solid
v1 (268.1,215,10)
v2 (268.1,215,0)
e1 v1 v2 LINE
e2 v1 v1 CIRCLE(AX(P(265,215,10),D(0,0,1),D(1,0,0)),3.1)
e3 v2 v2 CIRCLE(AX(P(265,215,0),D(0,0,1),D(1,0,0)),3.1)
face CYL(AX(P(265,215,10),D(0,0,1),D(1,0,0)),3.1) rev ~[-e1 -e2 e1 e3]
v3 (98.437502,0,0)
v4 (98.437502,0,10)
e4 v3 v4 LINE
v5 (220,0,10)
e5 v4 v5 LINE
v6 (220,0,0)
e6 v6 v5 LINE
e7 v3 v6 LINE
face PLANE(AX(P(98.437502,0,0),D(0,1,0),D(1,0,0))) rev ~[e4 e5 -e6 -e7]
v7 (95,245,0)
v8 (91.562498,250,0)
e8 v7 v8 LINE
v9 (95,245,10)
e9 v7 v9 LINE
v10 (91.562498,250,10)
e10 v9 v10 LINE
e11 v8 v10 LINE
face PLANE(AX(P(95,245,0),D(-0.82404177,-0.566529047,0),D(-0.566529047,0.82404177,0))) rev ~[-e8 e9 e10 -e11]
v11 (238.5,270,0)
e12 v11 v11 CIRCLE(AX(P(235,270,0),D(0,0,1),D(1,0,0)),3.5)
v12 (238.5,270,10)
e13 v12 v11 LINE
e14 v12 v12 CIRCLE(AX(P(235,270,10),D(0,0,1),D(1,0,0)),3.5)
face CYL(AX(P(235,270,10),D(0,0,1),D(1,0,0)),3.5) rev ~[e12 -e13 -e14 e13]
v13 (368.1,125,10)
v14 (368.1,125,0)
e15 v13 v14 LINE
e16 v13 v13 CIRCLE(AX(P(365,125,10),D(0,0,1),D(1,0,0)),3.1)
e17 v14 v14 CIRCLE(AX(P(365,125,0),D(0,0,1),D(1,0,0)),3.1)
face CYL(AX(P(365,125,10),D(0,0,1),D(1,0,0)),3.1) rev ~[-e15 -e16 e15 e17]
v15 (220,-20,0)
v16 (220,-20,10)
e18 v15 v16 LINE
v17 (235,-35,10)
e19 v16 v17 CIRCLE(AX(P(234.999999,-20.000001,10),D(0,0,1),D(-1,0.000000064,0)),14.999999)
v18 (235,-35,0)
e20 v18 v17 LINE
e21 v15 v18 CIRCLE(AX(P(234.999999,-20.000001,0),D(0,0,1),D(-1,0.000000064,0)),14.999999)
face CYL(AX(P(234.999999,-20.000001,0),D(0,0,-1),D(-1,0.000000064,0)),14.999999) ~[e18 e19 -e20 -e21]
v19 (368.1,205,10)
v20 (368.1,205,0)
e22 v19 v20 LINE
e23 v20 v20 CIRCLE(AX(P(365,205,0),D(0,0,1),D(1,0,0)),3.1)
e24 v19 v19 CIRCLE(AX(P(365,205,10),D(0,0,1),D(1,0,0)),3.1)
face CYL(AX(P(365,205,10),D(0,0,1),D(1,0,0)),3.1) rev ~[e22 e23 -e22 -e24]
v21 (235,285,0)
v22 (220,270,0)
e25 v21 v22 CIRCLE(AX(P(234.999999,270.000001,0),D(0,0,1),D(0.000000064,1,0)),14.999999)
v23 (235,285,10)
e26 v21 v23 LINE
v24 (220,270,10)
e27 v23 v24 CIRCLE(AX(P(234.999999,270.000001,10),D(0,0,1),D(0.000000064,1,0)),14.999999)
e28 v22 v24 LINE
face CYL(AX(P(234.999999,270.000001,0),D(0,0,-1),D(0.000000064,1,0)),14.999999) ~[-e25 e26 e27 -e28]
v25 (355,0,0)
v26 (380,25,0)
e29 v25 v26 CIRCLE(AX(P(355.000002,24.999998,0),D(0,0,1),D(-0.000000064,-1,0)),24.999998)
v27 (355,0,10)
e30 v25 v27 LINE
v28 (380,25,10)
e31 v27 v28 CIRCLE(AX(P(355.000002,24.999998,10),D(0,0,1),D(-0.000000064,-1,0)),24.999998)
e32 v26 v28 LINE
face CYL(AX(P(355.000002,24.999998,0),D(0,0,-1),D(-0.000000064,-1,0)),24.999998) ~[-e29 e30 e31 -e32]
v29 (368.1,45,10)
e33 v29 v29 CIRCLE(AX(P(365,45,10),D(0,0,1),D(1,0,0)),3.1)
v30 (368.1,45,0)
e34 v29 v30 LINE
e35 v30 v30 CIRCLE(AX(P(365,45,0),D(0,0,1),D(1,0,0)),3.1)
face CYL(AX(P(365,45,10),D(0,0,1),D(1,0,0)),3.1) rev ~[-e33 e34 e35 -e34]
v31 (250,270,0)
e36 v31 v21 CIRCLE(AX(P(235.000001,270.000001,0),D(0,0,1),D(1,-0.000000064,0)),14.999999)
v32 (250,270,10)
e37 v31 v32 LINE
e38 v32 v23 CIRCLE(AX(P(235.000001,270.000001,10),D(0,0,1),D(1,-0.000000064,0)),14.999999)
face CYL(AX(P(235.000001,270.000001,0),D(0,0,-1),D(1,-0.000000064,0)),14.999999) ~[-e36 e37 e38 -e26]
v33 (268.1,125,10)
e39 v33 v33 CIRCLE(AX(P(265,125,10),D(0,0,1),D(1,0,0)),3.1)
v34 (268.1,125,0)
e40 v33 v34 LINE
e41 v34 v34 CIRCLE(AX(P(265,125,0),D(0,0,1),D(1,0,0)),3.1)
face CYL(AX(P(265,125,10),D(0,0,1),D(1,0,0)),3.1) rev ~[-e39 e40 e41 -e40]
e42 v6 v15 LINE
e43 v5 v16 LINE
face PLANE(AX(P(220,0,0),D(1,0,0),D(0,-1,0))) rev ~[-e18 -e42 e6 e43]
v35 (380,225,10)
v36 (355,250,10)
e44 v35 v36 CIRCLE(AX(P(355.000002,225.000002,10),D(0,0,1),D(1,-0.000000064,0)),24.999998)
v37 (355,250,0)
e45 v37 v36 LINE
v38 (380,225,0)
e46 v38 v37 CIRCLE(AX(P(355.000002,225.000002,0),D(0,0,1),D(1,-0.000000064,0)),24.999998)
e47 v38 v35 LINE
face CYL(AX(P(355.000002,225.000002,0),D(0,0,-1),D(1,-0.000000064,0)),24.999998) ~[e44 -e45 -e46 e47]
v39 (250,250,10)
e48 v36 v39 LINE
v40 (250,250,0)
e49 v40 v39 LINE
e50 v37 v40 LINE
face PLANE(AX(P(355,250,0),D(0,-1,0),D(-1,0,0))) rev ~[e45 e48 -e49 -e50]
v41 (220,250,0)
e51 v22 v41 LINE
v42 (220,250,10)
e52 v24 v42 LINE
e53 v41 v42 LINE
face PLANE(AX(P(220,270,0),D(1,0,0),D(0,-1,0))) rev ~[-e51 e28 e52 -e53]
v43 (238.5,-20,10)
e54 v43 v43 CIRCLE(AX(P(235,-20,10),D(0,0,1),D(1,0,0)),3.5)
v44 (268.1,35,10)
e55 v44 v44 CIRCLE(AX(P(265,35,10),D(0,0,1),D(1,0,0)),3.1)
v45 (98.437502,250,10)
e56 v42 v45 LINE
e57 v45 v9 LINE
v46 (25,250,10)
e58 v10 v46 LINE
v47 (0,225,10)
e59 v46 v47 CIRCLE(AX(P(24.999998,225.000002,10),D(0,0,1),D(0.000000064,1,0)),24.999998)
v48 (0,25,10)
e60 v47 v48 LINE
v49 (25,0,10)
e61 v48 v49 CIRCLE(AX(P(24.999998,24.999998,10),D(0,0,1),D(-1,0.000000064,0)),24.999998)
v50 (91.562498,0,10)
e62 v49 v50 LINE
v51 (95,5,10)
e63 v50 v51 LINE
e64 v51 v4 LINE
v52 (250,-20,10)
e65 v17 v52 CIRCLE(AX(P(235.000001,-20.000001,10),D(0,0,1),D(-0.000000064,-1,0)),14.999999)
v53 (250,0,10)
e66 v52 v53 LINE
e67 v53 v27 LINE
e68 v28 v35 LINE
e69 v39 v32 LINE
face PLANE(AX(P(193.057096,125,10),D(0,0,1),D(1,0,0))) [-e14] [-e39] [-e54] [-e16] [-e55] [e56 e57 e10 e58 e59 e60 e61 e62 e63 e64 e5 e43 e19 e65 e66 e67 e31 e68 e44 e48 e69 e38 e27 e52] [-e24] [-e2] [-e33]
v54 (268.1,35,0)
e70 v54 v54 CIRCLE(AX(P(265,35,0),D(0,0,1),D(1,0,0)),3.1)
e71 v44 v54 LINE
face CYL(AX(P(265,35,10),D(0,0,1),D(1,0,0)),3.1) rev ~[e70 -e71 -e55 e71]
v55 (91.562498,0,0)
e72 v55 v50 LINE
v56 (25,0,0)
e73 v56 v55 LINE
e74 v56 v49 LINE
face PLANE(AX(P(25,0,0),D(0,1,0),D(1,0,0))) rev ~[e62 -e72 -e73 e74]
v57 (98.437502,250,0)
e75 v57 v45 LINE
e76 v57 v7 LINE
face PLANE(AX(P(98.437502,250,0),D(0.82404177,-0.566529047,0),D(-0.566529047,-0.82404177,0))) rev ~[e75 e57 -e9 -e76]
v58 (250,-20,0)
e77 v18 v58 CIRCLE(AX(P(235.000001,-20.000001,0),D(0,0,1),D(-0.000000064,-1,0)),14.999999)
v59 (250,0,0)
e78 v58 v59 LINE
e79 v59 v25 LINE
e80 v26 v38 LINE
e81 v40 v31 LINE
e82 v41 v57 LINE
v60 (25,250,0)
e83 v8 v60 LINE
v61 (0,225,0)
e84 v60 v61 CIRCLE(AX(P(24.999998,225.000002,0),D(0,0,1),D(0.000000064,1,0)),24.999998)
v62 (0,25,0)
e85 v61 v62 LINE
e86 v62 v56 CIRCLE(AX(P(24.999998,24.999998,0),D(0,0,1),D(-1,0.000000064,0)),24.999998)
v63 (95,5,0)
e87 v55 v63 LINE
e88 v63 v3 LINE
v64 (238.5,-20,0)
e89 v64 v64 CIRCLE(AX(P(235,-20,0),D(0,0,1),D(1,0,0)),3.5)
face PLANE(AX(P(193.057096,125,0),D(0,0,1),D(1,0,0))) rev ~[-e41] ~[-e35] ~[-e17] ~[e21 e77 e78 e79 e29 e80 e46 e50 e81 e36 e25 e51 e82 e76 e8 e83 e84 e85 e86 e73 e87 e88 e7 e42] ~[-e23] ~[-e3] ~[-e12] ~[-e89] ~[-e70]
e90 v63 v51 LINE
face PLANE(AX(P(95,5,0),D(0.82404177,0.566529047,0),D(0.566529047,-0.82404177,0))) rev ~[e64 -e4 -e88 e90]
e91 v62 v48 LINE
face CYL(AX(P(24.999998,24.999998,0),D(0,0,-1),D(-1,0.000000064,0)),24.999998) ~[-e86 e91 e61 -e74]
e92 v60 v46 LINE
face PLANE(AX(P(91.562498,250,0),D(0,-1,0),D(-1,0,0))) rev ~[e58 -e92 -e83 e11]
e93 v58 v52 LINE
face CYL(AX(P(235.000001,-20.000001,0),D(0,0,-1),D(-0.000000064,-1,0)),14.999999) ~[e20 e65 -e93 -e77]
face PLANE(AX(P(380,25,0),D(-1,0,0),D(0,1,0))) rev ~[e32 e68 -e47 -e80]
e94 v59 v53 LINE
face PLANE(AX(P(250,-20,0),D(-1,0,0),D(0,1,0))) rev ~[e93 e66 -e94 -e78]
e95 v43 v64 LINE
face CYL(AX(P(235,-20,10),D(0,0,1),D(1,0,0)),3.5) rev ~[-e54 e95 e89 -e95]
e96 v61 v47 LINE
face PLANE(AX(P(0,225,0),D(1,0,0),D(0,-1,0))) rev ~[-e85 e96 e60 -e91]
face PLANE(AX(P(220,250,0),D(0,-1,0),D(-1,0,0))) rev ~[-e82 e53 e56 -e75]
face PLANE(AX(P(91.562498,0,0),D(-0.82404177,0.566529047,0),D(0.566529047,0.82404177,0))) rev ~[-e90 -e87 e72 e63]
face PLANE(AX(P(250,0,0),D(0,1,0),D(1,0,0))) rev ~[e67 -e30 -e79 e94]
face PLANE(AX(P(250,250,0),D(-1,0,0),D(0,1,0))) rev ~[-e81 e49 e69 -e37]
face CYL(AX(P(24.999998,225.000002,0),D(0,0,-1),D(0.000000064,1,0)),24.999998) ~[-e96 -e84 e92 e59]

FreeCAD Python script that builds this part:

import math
import FreeCAD as App
import Part
import Sketcher
from FreeCAD import Vector

doc = App.newDocument("Part")
body = doc.addObject("PartDesign::Body", "Body")

sketch1 = body.newObject("Sketcher::SketchObject", "Sketch")
sketch1.AttachmentSupport = (doc.getObject("XY_Plane"), [""])
sketch1.MapMode = "FlatFace"
sketch1.addGeometry(Part.ArcOfCircle(Part.Circle(Vector(25, 25, 0), Vector(0, 0, 1), 25), math.radians(180), math.radians(270)), False)
sketch1.addGeometry(Part.LineSegment(Vector(25, 0, 0), Vector(92, 0, 0)), False)
sketch1.addGeometry(Part.LineSegment(Vector(92, 0, 0), Vector(95, 5, 0)), False)
sketch1.addGeometry(Part.LineSegment(Vector(95, 5, 0), Vector(98, 0, 0)), False)
sketch1.addGeometry(Part.LineSegment(Vector(98, 0, 0), Vector(220, 0, 0)), False)
sketch1.addGeometry(Part.LineSegment(Vector(220, 0, 0), Vector(220, -20, 0)), False)
sketch1.addGeometry(Part.ArcOfCircle(Part.Circle(Vector(235, -20, 0), Vector(0, 0, 1), 15), math.radians(180), math.radians(270)), False)
sketch1.addGeometry(Part.ArcOfCircle(Part.Circle(Vector(235, -20, 0), Vector(0, 0, 1), 15), math.radians(-90), math.radians(0)), False)
sketch1.addGeometry(Part.LineSegment(Vector(250, -20, 0), Vector(250, 0, 0)), False)
sketch1.addGeometry(Part.LineSegment(Vector(250, 0, 0), Vector(355, 0, 0)), False)
sketch1.addGeometry(Part.ArcOfCircle(Part.Circle(Vector(355, 25, 0), Vector(0, 0, 1), 25), math.radians(-90), math.radians(0)), False)
sketch1.addGeometry(Part.LineSegment(Vector(380, 25, 0), Vector(380, 225, 0)), False)
sketch1.addGeometry(Part.ArcOfCircle(Part.Circle(Vector(355, 225, 0), Vector(0, 0, 1), 25), math.radians(0), math.radians(90)), False)
sketch1.addGeometry(Part.LineSegment(Vector(355, 250, 0), Vector(250, 250, 0)), False)
sketch1.addGeometry(Part.LineSegment(Vector(250, 250, 0), Vector(250, 270, 0)), False)
sketch1.addGeometry(Part.ArcOfCircle(Part.Circle(Vector(235, 270, 0), Vector(0, 0, 1), 15), math.radians(0), math.radians(90)), False)
sketch1.addGeometry(Part.ArcOfCircle(Part.Circle(Vector(235, 270, 0), Vector(0, 0, 1), 15), math.radians(90), math.radians(180)), False)
sketch1.addGeometry(Part.LineSegment(Vector(220, 270, 0), Vector(220, 250, 0)), False)
sketch1.addGeometry(Part.LineSegment(Vector(220, 250, 0), Vector(98, 250, 0)), False)
sketch1.addGeometry(Part.LineSegment(Vector(98, 250, 0), Vector(95, 245, 0)), False)
sketch1.addGeometry(Part.LineSegment(Vector(95, 245, 0), Vector(92, 250, 0)), False)
sketch1.addGeometry(Part.LineSegment(Vector(92, 250, 0), Vector(25, 250, 0)), False)
sketch1.addGeometry(Part.ArcOfCircle(Part.Circle(Vector(25, 225, 0), Vector(0, 0, 1), 25), math.radians(90), math.radians(180)), False)
sketch1.addGeometry(Part.LineSegment(Vector(0, 225, 0), Vector(0, 25, 0)), False)
sketch1.addConstraint(Sketcher.Constraint("Tangent", 0, 2, 1, 1))
sketch1.addConstraint(Sketcher.Constraint("Coincident", 1, 2, 2, 1))
sketch1.addConstraint(Sketcher.Constraint("Coincident", 2, 2, 3, 1))
sketch1.addConstraint(Sketcher.Constraint("Coincident", 3, 2, 4, 1))
sketch1.addConstraint(Sketcher.Constraint("Coincident", 4, 2, 5, 1))
sketch1.addConstraint(Sketcher.Constraint("Tangent", 5, 2, 6, 1))
sketch1.addConstraint(Sketcher.Constraint("Tangent", 6, 2, 7, 1))
sketch1.addConstraint(Sketcher.Constraint("Tangent", 7, 2, 8, 1))
sketch1.addConstraint(Sketcher.Constraint("Coincident", 8, 2, 9, 1))
sketch1.addConstraint(Sketcher.Constraint("Tangent", 9, 2, 10, 1))
sketch1.addConstraint(Sketcher.Constraint("Tangent", 10, 2, 11, 1))
sketch1.addConstraint(Sketcher.Constraint("Tangent", 11, 2, 12, 1))
sketch1.addConstraint(Sketcher.Constraint("Tangent", 12, 2, 13, 1))
sketch1.addConstraint(Sketcher.Constraint("Coincident", 13, 2, 14, 1))
sketch1.addConstraint(Sketcher.Constraint("Tangent", 14, 2, 15, 1))
sketch1.addConstraint(Sketcher.Constraint("Tangent", 15, 2, 16, 1))
sketch1.addConstraint(Sketcher.Constraint("Tangent", 16, 2, 17, 1))
sketch1.addConstraint(Sketcher.Constraint("Coincident", 17, 2, 18, 1))
sketch1.addConstraint(Sketcher.Constraint("Coincident", 18, 2, 19, 1))
sketch1.addConstraint(Sketcher.Constraint("Coincident", 19, 2, 20, 1))
sketch1.addConstraint(Sketcher.Constraint("Coincident", 20, 2, 21, 1))
sketch1.addConstraint(Sketcher.Constraint("Tangent", 21, 2, 22, 1))
sketch1.addConstraint(Sketcher.Constraint("Tangent", 22, 2, 23, 1))
sketch1.addConstraint(Sketcher.Constraint("Tangent", 23, 2, 0, 1))
sketch1.addConstraint(Sketcher.Constraint("Horizontal", 1))
sketch1.addConstraint(Sketcher.Constraint("Horizontal", 4))
sketch1.addConstraint(Sketcher.Constraint("Vertical", 5))
sketch1.addConstraint(Sketcher.Constraint("Vertical", 8))
sketch1.addConstraint(Sketcher.Constraint("Horizontal", 9))
sketch1.addConstraint(Sketcher.Constraint("Vertical", 11))
sketch1.addConstraint(Sketcher.Constraint("Horizontal", 13))
sketch1.addConstraint(Sketcher.Constraint("Vertical", 14))
sketch1.addConstraint(Sketcher.Constraint("Vertical", 17))
sketch1.addConstraint(Sketcher.Constraint("Horizontal", 18))
sketch1.addConstraint(Sketcher.Constraint("Horizontal", 21))
sketch1.addConstraint(Sketcher.Constraint("Vertical", 23))
sketch1.addConstraint(Sketcher.Constraint("Equal", 6, 7))
sketch1.addConstraint(Sketcher.Constraint("Equal", 0, 10))
sketch1.addConstraint(Sketcher.Constraint("Equal", 10, 12))
sketch1.addConstraint(Sketcher.Constraint("Equal", 7, 15))
sketch1.addConstraint(Sketcher.Constraint("Equal", 15, 16))
sketch1.addConstraint(Sketcher.Constraint("Equal", 12, 22))
sketch1.addConstraint(Sketcher.Constraint("PointOnObject", 0, 2, -1))
sketch1.addConstraint(Sketcher.Constraint("PointOnObject", 3, 2, -1))
sketch1.addConstraint(Sketcher.Constraint("PointOnObject", 8, 2, -1))
sketch1.addConstraint(Sketcher.Constraint("PointOnObject", 22, 2, -2))
sketch1.addConstraint(Sketcher.Constraint("Parallel", 2, 19))
sketch1.addConstraint(Sketcher.Constraint("Parallel", 3, 20))
sketch1.addConstraint(Sketcher.Constraint("Horizontal", 12, 3, 22, 3))
sketch1.addConstraint(Sketcher.Constraint("Horizontal", 13, 2, 17, 2))
sketch1.addConstraint(Sketcher.Constraint("Vertical", 7, 3, 15, 3))
sketch1.addConstraint(Sketcher.Constraint("Vertical", 16, 3, 6, 2))
sketch1.addConstraint(Sketcher.Constraint("Vertical", 6, 2, 15, 2))
sketch1.addConstraint(Sketcher.Constraint("Vertical", 3, 2, 18, 2))
sketch1.addConstraint(Sketcher.Constraint("Vertical", 2, 2, 19, 2))
sketch1.addConstraint(Sketcher.Constraint("Vertical", 1, 2, 20, 2))
sketch1.addConstraint(Sketcher.Constraint("Equal", 8, 14))
sketch1.addConstraint(Sketcher.Constraint("Radius", 0, 24.999998))
sketch1.addConstraint(Sketcher.Constraint("Radius", 6, 14.999999))
sketch1.addConstraint(Sketcher.Constraint("DistanceX", 9, 1, 9, 2, 105.0))
sketch1.addConstraint(Sketcher.Constraint("DistanceY", 5, 2, 5, 1, 20.0))
sketch1.addConstraint(Sketcher.Constraint("DistanceY", 11, 1, 11, 2, 200.0))
sketch1.addConstraint(Sketcher.Constraint("DistanceX", -1, 1, 6, 3, 234.999999))
sketch1.addConstraint(Sketcher.Constraint("DistanceX", -1, 1, 2, 2, 95.0))
sketch1.addConstraint(Sketcher.Constraint("DistanceY", -1, 1, 2, 2, 5.0))
sketch1.addConstraint(Sketcher.Constraint("DistanceX", 1, 1, 1, 2, 66.562498))
pad1 = body.newObject("PartDesign::Pad", "Pad")
pad1.Profile = sketch1
pad1.Length = 10

sketch2 = body.newObject("Sketcher::SketchObject", "Sketch001")
sketch2.AttachmentSupport = (doc.getObject("XY_Plane"), [""])
sketch2.MapMode = "FlatFace"
sketch2.AttachmentOffset = App.Placement(Vector(0, 0, 10), App.Rotation())
sketch2.addGeometry(Part.Circle(Vector(235, -20, 0), Vector(0, 0, 1), 3.5), False)
sketch2.addGeometry(Part.Circle(Vector(235, 270, 0), Vector(0, 0, 1), 3.5), False)
sketch2.addConstraint(Sketcher.Constraint("Equal", 0, 1))
sketch2.addConstraint(Sketcher.Constraint("Vertical", 0, 3, 1, 3))
sketch2.addConstraint(Sketcher.Constraint("Diameter", 0, 7.0))
sketch2.addConstraint(Sketcher.Constraint("DistanceX", -1, 1, 0, 3, 235.0))
sketch2.addConstraint(Sketcher.Constraint("DistanceY", 0, 3, -1, 1, 20.0))
sketch2.addConstraint(Sketcher.Constraint("DistanceY", -1, 1, 1, 3, 270.0))
pocket1 = body.newObject("PartDesign::Pocket", "Pocket")
pocket1.Profile = sketch2
pocket1.Length = 25

sketch3 = body.newObject("Sketcher::SketchObject", "Sketch002")
sketch3.AttachmentSupport = (doc.getObject("XY_Plane"), [""])
sketch3.MapMode = "FlatFace"
sketch3.AttachmentOffset = App.Placement(Vector(0, 0, 10), App.Rotation())
sketch3.addGeometry(Part.Circle(Vector(265, 215, 0), Vector(0, 0, 1), 3.1), False)
sketch3.addGeometry(Part.Circle(Vector(265, 125, 0), Vector(0, 0, 1), 3.1), False)
sketch3.addGeometry(Part.Circle(Vector(265, 35, 0), Vector(0, 0, 1), 3.1), False)
sketch3.addGeometry(Part.Circle(Vector(365, 45, 0), Vector(0, 0, 1), 3.1), False)
sketch3.addGeometry(Part.Circle(Vector(365, 125, 0), Vector(0, 0, 1), 3.1), False)
sketch3.addGeometry(Part.Circle(Vector(365, 205, 0), Vector(0, 0, 1), 3.1), False)
sketch3.addConstraint(Sketcher.Constraint("Equal", 0, 1))
sketch3.addConstraint(Sketcher.Constraint("Equal", 1, 2))
sketch3.addConstraint(Sketcher.Constraint("Equal", 2, 3))
sketch3.addConstraint(Sketcher.Constraint("Equal", 3, 4))
sketch3.addConstraint(Sketcher.Constraint("Equal", 4, 5))
sketch3.addConstraint(Sketcher.Constraint("Horizontal", 1, 3, 4, 3))
sketch3.addConstraint(Sketcher.Constraint("Vertical", 0, 3, 1, 3))
sketch3.addConstraint(Sketcher.Constraint("Vertical", 1, 3, 2, 3))
sketch3.addConstraint(Sketcher.Constraint("Vertical", 3, 3, 4, 3))
sketch3.addConstraint(Sketcher.Constraint("Vertical", 4, 3, 5, 3))
sketch3.addConstraint(Sketcher.Constraint("Diameter", 0, 6.2))
sketch3.addConstraint(Sketcher.Constraint("DistanceX", -1, 1, 0, 3, 265.0))
sketch3.addConstraint(Sketcher.Constraint("DistanceY", -1, 1, 0, 3, 215.0))
sketch3.addConstraint(Sketcher.Constraint("DistanceY", -1, 1, 1, 3, 125.0))
sketch3.addConstraint(Sketcher.Constraint("DistanceY", -1, 1, 2, 3, 35.0))
sketch3.addConstraint(Sketcher.Constraint("DistanceX", -1, 1, 3, 3, 365.0))
sketch3.addConstraint(Sketcher.Constraint("DistanceY", -1, 1, 3, 3, 45.0))
sketch3.addConstraint(Sketcher.Constraint("DistanceY", -1, 1, 5, 3, 205.0))
pocket2 = body.newObject("PartDesign::Pocket", "Pocket001")
pocket2.Profile = sketch3
pocket2.Length = 25

doc.recompute()
